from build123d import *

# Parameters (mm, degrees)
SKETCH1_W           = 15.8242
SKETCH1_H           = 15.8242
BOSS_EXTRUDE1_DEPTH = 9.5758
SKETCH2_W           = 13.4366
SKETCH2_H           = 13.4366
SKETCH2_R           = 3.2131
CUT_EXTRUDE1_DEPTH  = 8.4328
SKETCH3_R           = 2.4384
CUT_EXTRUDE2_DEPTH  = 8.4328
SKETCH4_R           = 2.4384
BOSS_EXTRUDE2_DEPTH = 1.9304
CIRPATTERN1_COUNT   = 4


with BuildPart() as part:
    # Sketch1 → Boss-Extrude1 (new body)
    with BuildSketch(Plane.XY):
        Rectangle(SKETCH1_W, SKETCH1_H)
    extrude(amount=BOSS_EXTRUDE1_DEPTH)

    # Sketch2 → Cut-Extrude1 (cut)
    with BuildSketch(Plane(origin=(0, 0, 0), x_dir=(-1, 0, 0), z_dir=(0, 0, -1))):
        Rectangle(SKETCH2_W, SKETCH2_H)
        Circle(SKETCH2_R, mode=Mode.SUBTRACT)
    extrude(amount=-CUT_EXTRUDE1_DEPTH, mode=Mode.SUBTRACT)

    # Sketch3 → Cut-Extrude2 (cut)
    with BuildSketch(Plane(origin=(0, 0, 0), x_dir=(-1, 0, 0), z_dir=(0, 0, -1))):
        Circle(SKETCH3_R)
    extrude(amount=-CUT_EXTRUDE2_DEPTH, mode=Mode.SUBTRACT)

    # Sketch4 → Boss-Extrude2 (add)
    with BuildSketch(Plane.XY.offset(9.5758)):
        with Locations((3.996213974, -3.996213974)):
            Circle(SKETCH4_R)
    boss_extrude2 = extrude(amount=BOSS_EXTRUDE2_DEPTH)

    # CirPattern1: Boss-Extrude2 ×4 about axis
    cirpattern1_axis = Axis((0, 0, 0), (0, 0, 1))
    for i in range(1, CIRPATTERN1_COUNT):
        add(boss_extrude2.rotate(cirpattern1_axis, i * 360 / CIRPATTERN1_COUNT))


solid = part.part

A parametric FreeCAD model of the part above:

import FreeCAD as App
import Part
import Sketcher
Q = App.Units.Quantity


def add_polygon(sketch, points):
    """Adds a closed chain of lines whose ends are joined by coincident constraints."""
    first, n = sketch.GeometryCount, len(points)
    for a, b in zip(points, points[1:] + points[:1]):
        sketch.addGeometry(Part.LineSegment(App.Vector(*a, 0), App.Vector(*b, 0)), False)
    for i in range(n):
        sketch.addConstraint(Sketcher.Constraint("Coincident", first + i, 2, first + (i + 1) % n, 1))

doc = App.newDocument("Part")
body = doc.addObject("PartDesign::Body", "Body")

# Sketch on XY plane
sketch1 = body.newObject("Sketcher::SketchObject", "Sketch")
sketch1.AttachmentSupport = (doc.getObject("XY_Plane"), [""])
sketch1.MapMode = "FlatFace"
add_polygon(sketch1, [(-8, 8), (-8, -8), (8, -8), (8, 8)])  # lines 0-3
sketch1.addConstraint([
    Sketcher.Constraint("Vertical", 0),
    Sketcher.Constraint("Horizontal", 1),
    Sketcher.Constraint("Vertical", 2),
    Sketcher.Constraint("Horizontal", 3),
    Sketcher.Constraint("Symmetric", 0, 2, 2, 2, -1, 1),
    Sketcher.Constraint("Equal", 3, 0),
    Sketcher.Constraint("DistanceX", 1, 1, 1, 2, Q("0.623 in")),
])
pad1 = body.newObject("PartDesign::Pad", "Pad")
pad1.Profile = sketch1
pad1.Length = Q("0.377 in")

# Sketch on XY plane
sketch2 = body.newObject("Sketcher::SketchObject", "Sketch001")
sketch2.AttachmentSupport = (doc.getObject("XY_Plane"), [""])
sketch2.MapMode = "FlatFace"
add_polygon(sketch2, [(6.7, 6.7), (6.7, -6.7), (-6.7, -6.7), (-6.7, 6.7)])  # lines 0-3
sketch2.addGeometry(Part.Circle(App.Vector(0, 0, 0), App.Vector(0, 0, 1), 3.2), False)  # 4
sketch2.addConstraint([
    Sketcher.Constraint("Vertical", 0),
    Sketcher.Constraint("Horizontal", 1),
    Sketcher.Constraint("Vertical", 2),
    Sketcher.Constraint("Horizontal", 3),
    Sketcher.Constraint("Coincident", 4, 3, -1, 1),
    Sketcher.Constraint("Symmetric", 0, 2, 2, 2, -1, 1),
    Sketcher.Constraint("Equal", 3, 0),
    Sketcher.Constraint("Diameter", 4, Q("0.253 in")),
    Sketcher.Constraint("DistanceX", 1, 2, 1, 1, Q("0.529 in")),
])
pocket1 = body.newObject("PartDesign::Pocket", "Pocket")
pocket1.Profile = sketch2
pocket1.Length = Q("0.332 in")
pocket1.Reversed = True

# Sketch on XY plane
sketch3 = body.newObject("Sketcher::SketchObject", "Sketch002")
sketch3.AttachmentSupport = (doc.getObject("XY_Plane"), [""])
sketch3.MapMode = "FlatFace"
sketch3.addGeometry(Part.Circle(App.Vector(0, 0, 0), App.Vector(0, 0, 1), 2.4), False)
sketch3.addConstraint([
    Sketcher.Constraint("Coincident", 0, 3, -1, 1),
    Sketcher.Constraint("Diameter", 0, Q("0.192 in")),
])
pocket2 = body.newObject("PartDesign::Pocket", "Pocket001")
pocket2.Profile = sketch3
pocket2.Length = Q("0.332 in")
pocket2.Reversed = True

# Sketch on XY plane
sketch4 = body.newObject("Sketcher::SketchObject", "Sketch003")
sketch4.AttachmentSupport = (doc.getObject("XY_Plane"), [""])
sketch4.MapMode = "FlatFace"
sketch4.AttachmentOffset = App.Placement(App.Vector(0, 0, 0.377 * 25.4), App.Rotation())
sketch4.addGeometry(Part.Circle(App.Vector(4, -4, 0), App.Vector(0, 0, 1), 2.4), False)
sketch4.addConstraint([
    Sketcher.Constraint("Diameter", 0, Q("0.192 in")),
    Sketcher.Constraint("DistanceX", -1, 1, 0, 3, 3.996214),
    Sketcher.Constraint("DistanceY", 0, 3, -1, 1, 3.996214),
])
pad2 = body.newObject("PartDesign::Pad", "Pad001")
pad2.Profile = sketch4
pad2.Length = Q("0.076 in")
doc.recompute()

polarpattern = body.newObject("PartDesign::PolarPattern", "PolarPattern")
polarpattern.Originals = [pad2]
polarpattern.Axis = (doc.getObject("Z_Axis"), [""])
polarpattern.Angle = 360
polarpattern.Occurrences = 4
body.Tip = polarpattern

doc.recompute()
